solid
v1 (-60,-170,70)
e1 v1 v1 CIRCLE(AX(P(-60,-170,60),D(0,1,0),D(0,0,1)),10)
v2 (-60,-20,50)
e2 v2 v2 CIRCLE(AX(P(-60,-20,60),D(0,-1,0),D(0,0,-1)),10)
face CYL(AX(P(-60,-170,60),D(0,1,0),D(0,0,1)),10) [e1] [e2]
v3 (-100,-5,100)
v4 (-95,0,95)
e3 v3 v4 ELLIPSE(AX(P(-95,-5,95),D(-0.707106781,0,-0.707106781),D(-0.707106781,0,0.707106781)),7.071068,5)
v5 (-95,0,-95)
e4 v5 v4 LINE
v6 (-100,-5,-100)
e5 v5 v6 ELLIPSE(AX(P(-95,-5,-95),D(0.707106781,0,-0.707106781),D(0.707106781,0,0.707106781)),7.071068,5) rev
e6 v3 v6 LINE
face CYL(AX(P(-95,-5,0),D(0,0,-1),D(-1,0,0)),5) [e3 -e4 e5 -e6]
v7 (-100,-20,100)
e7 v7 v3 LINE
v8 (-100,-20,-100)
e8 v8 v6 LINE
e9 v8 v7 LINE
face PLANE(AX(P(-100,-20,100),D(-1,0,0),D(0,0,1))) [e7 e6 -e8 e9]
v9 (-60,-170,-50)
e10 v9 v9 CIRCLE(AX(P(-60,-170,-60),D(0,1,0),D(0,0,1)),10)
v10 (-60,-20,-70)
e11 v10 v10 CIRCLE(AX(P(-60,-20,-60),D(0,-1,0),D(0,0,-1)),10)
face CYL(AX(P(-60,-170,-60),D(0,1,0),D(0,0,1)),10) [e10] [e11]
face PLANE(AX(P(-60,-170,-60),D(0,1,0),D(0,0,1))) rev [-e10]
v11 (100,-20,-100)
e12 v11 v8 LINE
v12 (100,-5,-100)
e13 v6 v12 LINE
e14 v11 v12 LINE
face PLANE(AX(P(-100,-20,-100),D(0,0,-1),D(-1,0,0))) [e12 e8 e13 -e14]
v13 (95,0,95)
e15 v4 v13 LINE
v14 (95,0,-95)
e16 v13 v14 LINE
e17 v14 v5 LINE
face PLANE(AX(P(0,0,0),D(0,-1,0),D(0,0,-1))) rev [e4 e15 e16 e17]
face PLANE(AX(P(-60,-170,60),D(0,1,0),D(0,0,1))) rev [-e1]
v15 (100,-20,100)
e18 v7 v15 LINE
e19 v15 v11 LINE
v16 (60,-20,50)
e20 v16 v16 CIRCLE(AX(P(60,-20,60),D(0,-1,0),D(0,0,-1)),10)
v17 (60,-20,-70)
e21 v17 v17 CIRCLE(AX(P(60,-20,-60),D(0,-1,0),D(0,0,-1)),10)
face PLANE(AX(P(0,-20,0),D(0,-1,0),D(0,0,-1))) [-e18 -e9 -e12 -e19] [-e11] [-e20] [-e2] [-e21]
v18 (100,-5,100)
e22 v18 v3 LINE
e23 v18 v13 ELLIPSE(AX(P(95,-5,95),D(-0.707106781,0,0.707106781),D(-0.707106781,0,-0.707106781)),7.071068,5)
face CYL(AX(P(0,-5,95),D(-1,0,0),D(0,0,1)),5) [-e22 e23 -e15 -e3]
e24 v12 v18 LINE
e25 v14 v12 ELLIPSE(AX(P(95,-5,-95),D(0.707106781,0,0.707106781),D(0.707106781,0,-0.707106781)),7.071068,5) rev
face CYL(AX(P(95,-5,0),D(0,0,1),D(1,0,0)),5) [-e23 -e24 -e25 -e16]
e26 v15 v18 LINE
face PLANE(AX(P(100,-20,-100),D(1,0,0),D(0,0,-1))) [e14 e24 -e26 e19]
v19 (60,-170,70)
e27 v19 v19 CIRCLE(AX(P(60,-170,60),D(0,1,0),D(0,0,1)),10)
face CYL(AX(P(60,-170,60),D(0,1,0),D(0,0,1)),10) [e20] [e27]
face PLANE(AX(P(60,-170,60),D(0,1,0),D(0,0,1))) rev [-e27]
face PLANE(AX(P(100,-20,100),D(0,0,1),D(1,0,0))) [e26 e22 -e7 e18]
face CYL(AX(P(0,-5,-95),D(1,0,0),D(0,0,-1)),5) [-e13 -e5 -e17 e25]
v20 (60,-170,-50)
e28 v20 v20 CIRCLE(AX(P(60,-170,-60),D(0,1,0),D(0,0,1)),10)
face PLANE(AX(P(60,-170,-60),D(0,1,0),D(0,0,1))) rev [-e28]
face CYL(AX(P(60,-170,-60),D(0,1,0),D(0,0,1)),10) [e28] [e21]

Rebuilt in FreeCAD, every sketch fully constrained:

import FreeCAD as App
import Part
import Sketcher
from FreeCAD import Vector
Q = App.Units.Quantity


def edges_at(feature, points):
    """Names of the edges that pass closest to the given points."""
    edges = feature.Shape.Edges
    near = lambda p: min(range(len(edges)), key=lambda i: edges[i].distToShape(Part.Vertex(*p))[0])
    return sorted({f"Edge{near(p) + 1}" for p in points})


def add_polygon(sketch, points):
    """Adds a closed chain of lines whose ends are joined by coincident constraints."""
    first, n = sketch.GeometryCount, len(points)
    for a, b in zip(points, points[1:] + points[:1]):
        sketch.addGeometry(Part.LineSegment(App.Vector(*a, 0), App.Vector(*b, 0)), False)
    for i in range(n):
        sketch.addConstraint(Sketcher.Constraint("Coincident", first + i, 2, first + (i + 1) % n, 1))

doc = App.newDocument("Part")
params = doc.addObject("Spreadsheet::Sheet", "Params")
for row, (alias, value) in enumerate([
    ("sketch1_width", "200 mm"),
    ("pad1_length", "20 mm"),
    ("fillet_radius", "5 mm"),
    ("sketch2_diameter", "20 mm"),
    ("pad2_length", "150 mm"),
], start=1):
    params.set(f"A{row}", alias)
    params.set(f"B{row}", "=" + value)
    params.setAlias(f"B{row}", alias)

body = doc.addObject("PartDesign::Body", "Body")

# Sketch on XZ plane
sketch1 = doc.addObject("Sketcher::SketchObject", "Sketch")
body.addObject(sketch1)
sketch1.AttachmentSupport = (doc.XZ_Plane, [""])
sketch1.MapMode = "FlatFace"
add_polygon(sketch1, [(-100, -100), (-100, 100), (100, 100), (100, -100)])  # lines 0-3
sketch1.addConstraint(Sketcher.Constraint("Vertical", 0))
sketch1.addConstraint(Sketcher.Constraint("Horizontal", 1))
sketch1.addConstraint(Sketcher.Constraint("Vertical", 2))
sketch1.addConstraint(Sketcher.Constraint("Horizontal", 3))
sketch1.addConstraint(Sketcher.Constraint("Symmetric", 0, 2, 2, 2, -1, 1))
sketch1.addConstraint(Sketcher.Constraint("Equal", 3, 0))
sketch1.addConstraint(Sketcher.Constraint("DistanceX", 1, 1, 1, 2, Q("200 mm")))
sketch1.setExpression("Constraints[10]", "Params.sketch1_width")
pad1 = doc.addObject("PartDesign::Pad", "Pad")
body.addObject(pad1)
pad1.Profile = sketch1
pad1.setExpression("Length", "Params.pad1_length")
doc.recompute()

fillet = doc.addObject("PartDesign::Fillet", "Fillet")
body.addObject(fillet)
fillet.Base = (pad1, edges_at(pad1, [
    (0, 0, -100),
    (100, 0, 0),
    (0, 0, 100),
    (-100, 0, 0),
]))
fillet.setExpression("Radius", "Params.fillet_radius")

# Sketch on XZ plane
sketch2 = doc.addObject("Sketcher::SketchObject", "Sketch001")
body.addObject(sketch2)
sketch2.AttachmentSupport = (doc.XZ_Plane, [""])
sketch2.MapMode = "FlatFace"
sketch2.AttachmentOffset = App.Placement(Vector(0, 0, 20), App.Rotation())
sketch2.addGeometry(Part.Circle(Vector(-60, -60, 0), Vector(0, 0, 1), 10), False)
sketch2.addGeometry(Part.Circle(Vector(60, -60, 0), Vector(0, 0, 1), 10), False)
sketch2.addGeometry(Part.Circle(Vector(-60, 60, 0), Vector(0, 0, 1), 10), False)
sketch2.addGeometry(Part.Circle(Vector(60, 60, 0), Vector(0, 0, 1), 10), False)
sketch2.addConstraint(Sketcher.Constraint("Equal", 0, 1))
sketch2.addConstraint(Sketcher.Constraint("Equal", 1, 2))
sketch2.addConstraint(Sketcher.Constraint("Equal", 2, 3))
sketch2.addConstraint(Sketcher.Constraint("Symmetric", 1, 3, 2, 3, -1, 1))
sketch2.addConstraint(Sketcher.Constraint("Symmetric", 0, 3, 3, 3, -1, 1))
sketch2.addConstraint(Sketcher.Constraint("Symmetric", 0, 3, 1, 3, -2))
sketch2.addConstraint(Sketcher.Constraint("Diameter", 0, Q("20 mm")))
sketch2.addConstraint(Sketcher.Constraint("DistanceX", 0, 3, -1, 1, Q("60 mm")))
sketch2.addConstraint(Sketcher.Constraint("DistanceY", 0, 3, -1, 1, Q("60 mm")))
sketch2.setExpression("Constraints[6]", "Params.sketch2_diameter")
pad2 = doc.addObject("PartDesign::Pad", "Pad001")
body.addObject(pad2)
pad2.Profile = sketch2
pad2.setExpression("Length", "Params.pad2_length")

doc.recompute()
